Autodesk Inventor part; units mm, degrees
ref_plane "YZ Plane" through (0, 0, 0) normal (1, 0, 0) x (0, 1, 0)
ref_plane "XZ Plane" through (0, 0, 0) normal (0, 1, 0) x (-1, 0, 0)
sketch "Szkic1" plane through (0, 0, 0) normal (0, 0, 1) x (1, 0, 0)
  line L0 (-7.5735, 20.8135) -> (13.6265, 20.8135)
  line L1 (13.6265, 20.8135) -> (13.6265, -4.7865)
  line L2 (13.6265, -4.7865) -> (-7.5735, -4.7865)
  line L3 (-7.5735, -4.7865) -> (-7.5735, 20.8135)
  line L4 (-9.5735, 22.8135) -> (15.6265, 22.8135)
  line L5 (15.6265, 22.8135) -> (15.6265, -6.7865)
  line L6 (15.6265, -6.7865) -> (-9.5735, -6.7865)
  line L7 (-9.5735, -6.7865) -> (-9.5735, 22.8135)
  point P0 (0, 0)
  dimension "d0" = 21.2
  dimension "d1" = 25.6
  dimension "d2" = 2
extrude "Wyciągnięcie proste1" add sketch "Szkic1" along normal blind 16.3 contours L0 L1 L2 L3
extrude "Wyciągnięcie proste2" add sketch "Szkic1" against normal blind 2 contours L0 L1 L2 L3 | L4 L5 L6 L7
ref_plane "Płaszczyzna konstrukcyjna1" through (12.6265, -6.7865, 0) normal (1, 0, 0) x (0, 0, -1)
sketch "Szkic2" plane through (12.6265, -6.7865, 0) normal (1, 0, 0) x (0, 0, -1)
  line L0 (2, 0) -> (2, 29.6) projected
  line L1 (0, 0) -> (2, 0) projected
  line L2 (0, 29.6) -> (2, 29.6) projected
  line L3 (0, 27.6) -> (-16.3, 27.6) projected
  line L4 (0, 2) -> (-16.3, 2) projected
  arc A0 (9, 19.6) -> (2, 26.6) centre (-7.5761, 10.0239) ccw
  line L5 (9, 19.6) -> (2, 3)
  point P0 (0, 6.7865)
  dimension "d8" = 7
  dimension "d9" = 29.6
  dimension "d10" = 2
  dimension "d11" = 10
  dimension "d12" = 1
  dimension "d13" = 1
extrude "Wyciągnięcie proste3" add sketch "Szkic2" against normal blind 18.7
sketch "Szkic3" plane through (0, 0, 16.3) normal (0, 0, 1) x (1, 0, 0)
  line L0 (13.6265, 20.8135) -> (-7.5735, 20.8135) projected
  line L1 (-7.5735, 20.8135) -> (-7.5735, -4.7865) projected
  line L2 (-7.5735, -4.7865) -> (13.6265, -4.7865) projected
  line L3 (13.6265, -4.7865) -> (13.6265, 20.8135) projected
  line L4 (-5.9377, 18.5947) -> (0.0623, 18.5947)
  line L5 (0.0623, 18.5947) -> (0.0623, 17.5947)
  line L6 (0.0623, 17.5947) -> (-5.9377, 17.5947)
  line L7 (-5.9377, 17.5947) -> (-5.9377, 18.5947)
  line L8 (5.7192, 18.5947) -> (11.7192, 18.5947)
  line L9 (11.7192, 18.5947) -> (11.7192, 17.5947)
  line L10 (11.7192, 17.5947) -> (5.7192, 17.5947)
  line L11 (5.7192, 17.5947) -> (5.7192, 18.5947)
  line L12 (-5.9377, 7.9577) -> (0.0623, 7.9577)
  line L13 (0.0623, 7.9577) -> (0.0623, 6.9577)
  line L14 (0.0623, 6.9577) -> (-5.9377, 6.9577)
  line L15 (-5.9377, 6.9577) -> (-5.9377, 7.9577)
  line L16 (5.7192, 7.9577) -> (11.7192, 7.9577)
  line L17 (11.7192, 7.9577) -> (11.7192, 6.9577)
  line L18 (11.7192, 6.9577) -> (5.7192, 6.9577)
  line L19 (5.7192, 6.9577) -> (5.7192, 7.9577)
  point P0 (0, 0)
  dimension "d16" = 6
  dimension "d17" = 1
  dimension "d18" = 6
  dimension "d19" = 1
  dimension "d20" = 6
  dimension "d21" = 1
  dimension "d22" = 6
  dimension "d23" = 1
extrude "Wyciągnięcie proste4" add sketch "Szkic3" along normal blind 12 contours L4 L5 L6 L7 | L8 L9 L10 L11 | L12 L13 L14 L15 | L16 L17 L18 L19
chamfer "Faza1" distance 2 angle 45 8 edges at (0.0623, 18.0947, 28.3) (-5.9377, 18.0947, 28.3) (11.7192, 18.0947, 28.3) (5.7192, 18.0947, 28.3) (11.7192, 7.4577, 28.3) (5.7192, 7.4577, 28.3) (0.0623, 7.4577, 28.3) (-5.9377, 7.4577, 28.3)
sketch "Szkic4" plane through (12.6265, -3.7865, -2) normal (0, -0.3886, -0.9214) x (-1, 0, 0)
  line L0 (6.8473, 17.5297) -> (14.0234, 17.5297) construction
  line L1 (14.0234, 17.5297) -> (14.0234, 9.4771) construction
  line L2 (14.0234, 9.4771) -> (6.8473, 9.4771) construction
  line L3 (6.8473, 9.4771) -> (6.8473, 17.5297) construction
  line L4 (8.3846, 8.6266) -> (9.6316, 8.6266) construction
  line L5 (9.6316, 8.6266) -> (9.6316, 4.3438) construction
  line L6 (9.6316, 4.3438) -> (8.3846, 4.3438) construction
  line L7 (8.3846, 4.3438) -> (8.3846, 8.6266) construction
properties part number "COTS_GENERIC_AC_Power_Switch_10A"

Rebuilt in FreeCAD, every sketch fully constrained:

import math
import FreeCAD as App
import Part
import Sketcher

V = App.Vector


def edges_at(feature, points):
    """Names of the edges that pass closest to the given points."""
    edges = feature.Shape.Edges
    near = lambda p: min(range(len(edges)), key=lambda i: edges[i].distToShape(Part.Vertex(*p))[0])
    return sorted({f"Edge{near(p) + 1}" for p in points})


def add_polygon(sketch, points):
    """Adds a closed chain of lines whose ends are joined by coincident constraints."""
    first, n = sketch.GeometryCount, len(points)
    for a, b in zip(points, points[1:] + points[:1]):
        sketch.addGeometry(Part.LineSegment(App.Vector(*a, 0), App.Vector(*b, 0)), False)
    for i in range(n):
        sketch.addConstraint(Sketcher.Constraint("Coincident", first + i, 2, first + (i + 1) % n, 1))

doc = App.newDocument("Part")
body = doc.addObject("PartDesign::Body", "Body")

# Sketch on XY plane
sketch1 = body.newObject("Sketcher::SketchObject", "Sketch")
sketch1.AttachmentSupport = (doc.getObject("XY_Plane"), [""])
sketch1.MapMode = "FlatFace"
add_polygon(sketch1, [(14, 21), (-8, 21), (-8, -5), (14, -5)])  # lines 0-3
sketch1.addConstraint(Sketcher.Constraint("Horizontal", 0))
sketch1.addConstraint(Sketcher.Constraint("Vertical", 1))
sketch1.addConstraint(Sketcher.Constraint("Horizontal", 2))
sketch1.addConstraint(Sketcher.Constraint("Vertical", 3))
sketch1.addConstraint(Sketcher.Constraint("DistanceX", 0, 2, 0, 1, 21.2))
sketch1.addConstraint(Sketcher.Constraint("DistanceY", 1, 2, 1, 1, 25.6))
sketch1.addConstraint(Sketcher.Constraint("DistanceX", 0, 2, -1, 1, 7.5735))
sketch1.addConstraint(Sketcher.Constraint("DistanceY", -1, 1, 0, 2, 20.8135))
pad1 = body.newObject("PartDesign::Pad", "Pad")
pad1.Profile = sketch1
pad1.Length = 16.3

# Sketch on XY plane
sketch2 = body.newObject("Sketcher::SketchObject", "Sketch001")
sketch2.AttachmentSupport = (doc.getObject("XY_Plane"), [""])
sketch2.MapMode = "FlatFace"
add_polygon(sketch2, [(16, 23), (-10, 23), (-10, -7), (16, -7)])  # lines 0-3
sketch2.addConstraint(Sketcher.Constraint("Horizontal", 0))
sketch2.addConstraint(Sketcher.Constraint("Vertical", 1))
sketch2.addConstraint(Sketcher.Constraint("Horizontal", 2))
sketch2.addConstraint(Sketcher.Constraint("Vertical", 3))
sketch2.addConstraint(Sketcher.Constraint("DistanceX", 0, 2, 0, 1, 25.2))
sketch2.addConstraint(Sketcher.Constraint("DistanceY", 1, 2, 1, 1, 29.6))
sketch2.addConstraint(Sketcher.Constraint("DistanceX", 0, 2, -1, 1, 9.5735))
sketch2.addConstraint(Sketcher.Constraint("DistanceY", -1, 1, 0, 2, 22.8135))
pad2 = body.newObject("PartDesign::Pad", "Pad001")
pad2.Profile = sketch2
pad2.Length = 2
pad2.Reversed = True

# Sketch on YZ plane
sketch3 = body.newObject("Sketcher::SketchObject", "Sketch002")
sketch3.AttachmentSupport = (doc.getObject("YZ_Plane"), [""])
sketch3.MapMode = "FlatFace"
sketch3.AttachmentOffset = App.Placement(V(0, 0, 12.6265), App.Rotation())
sketch3.addGeometry(Part.LineSegment(V(20, -2, 0), V(-4, -2, 0)), False)
sketch3.addGeometry(Part.LineSegment(V(-4, -2, 0), V(13, -9, 0)), False)
sketch3.addGeometry(Part.ArcOfCircle(Part.Circle(V(3, 8, 0), V(0, 0, 1), 19), math.radians(-60), math.radians(-30)), False)
sketch3.addConstraint(Sketcher.Constraint("Coincident", 0, 2, 1, 1))
sketch3.addConstraint(Sketcher.Constraint("Coincident", 1, 2, 2, 1))
sketch3.addConstraint(Sketcher.Constraint("Coincident", 2, 2, 0, 1))
sketch3.addConstraint(Sketcher.Constraint("Horizontal", 0))
sketch3.addConstraint(Sketcher.Constraint("DistanceY", 0, 2, -1, 1, 2.0))
sketch3.addConstraint(Sketcher.Constraint("DistanceY", 1, 2, 0, 2, 7.0))
sketch3.addConstraint(Sketcher.Constraint("DistanceX", 1, 2, 2, 2, 7.0))
sketch3.addConstraint(Sketcher.Constraint("DistanceX", 0, 2, 0, 1, 23.6))
sketch3.addConstraint(Sketcher.Constraint("Radius", 2, 19.1434))
sketch3.addConstraint(Sketcher.Constraint("DistanceX", -1, 1, 2, 3, 3.2374))
pad3 = body.newObject("PartDesign::Pad", "Pad002")
pad3.Profile = sketch3
pad3.Length = 18.7
pad3.Reversed = True

# Sketch on XY plane
sketch4 = body.newObject("Sketcher::SketchObject", "Sketch003")
sketch4.AttachmentSupport = (doc.getObject("XY_Plane"), [""])
sketch4.MapMode = "FlatFace"
sketch4.AttachmentOffset = App.Placement(V(0, 0, 16.3), App.Rotation())
add_polygon(sketch4, [(0.1, 18.6), (-5.9, 18.6), (-5.9, 17.6), (0.1, 17.6)])  # lines 0-3
add_polygon(sketch4, [(11.7, 18.6), (5.7, 18.6), (5.7, 17.6), (11.7, 17.6)])  # lines 4-7
add_polygon(sketch4, [(0.1, 8), (-5.9, 8), (-5.9, 7), (0.1, 7)])  # lines 8-11
add_polygon(sketch4, [(11.7, 8), (5.7, 8), (5.7, 7), (11.7, 7)])  # lines 12-15
sketch4.addConstraint(Sketcher.Constraint("Horizontal", 0))
sketch4.addConstraint(Sketcher.Constraint("Vertical", 1))
sketch4.addConstraint(Sketcher.Constraint("Horizontal", 2))
sketch4.addConstraint(Sketcher.Constraint("Vertical", 3))
sketch4.addConstraint(Sketcher.Constraint("Horizontal", 4))
sketch4.addConstraint(Sketcher.Constraint("Vertical", 5))
sketch4.addConstraint(Sketcher.Constraint("Horizontal", 6))
sketch4.addConstraint(Sketcher.Constraint("Vertical", 7))
sketch4.addConstraint(Sketcher.Constraint("Horizontal", 8))
sketch4.addConstraint(Sketcher.Constraint("Vertical", 9))
sketch4.addConstraint(Sketcher.Constraint("Horizontal", 10))
sketch4.addConstraint(Sketcher.Constraint("Vertical", 11))
sketch4.addConstraint(Sketcher.Constraint("Horizontal", 12))
sketch4.addConstraint(Sketcher.Constraint("Vertical", 13))
sketch4.addConstraint(Sketcher.Constraint("Horizontal", 14))
sketch4.addConstraint(Sketcher.Constraint("Vertical", 15))
sketch4.addConstraint(Sketcher.Constraint("Horizontal", 3, 2, 4, 2))
sketch4.addConstraint(Sketcher.Constraint("Horizontal", 2, 2, 5, 2))
sketch4.addConstraint(Sketcher.Constraint("Horizontal", 11, 2, 12, 2))
sketch4.addConstraint(Sketcher.Constraint("Horizontal", 10, 2, 13, 2))
sketch4.addConstraint(Sketcher.Constraint("Vertical", 1, 2, 8, 2))
sketch4.addConstraint(Sketcher.Constraint("Vertical", 3, 2, 10, 2))
sketch4.addConstraint(Sketcher.Constraint("Vertical", 5, 2, 12, 2))
sketch4.addConstraint(Sketcher.Constraint("Vertical", 7, 2, 14, 2))
sketch4.addConstraint(Sketcher.Constraint("Equal", 2, 4))
sketch4.addConstraint(Sketcher.Constraint("Equal", 7, 9))
sketch4.addConstraint(Sketcher.Constraint("DistanceX", 0, 2, 0, 1, 6.0))
sketch4.addConstraint(Sketcher.Constraint("DistanceY", 1, 2, 1, 1, 1.0))
sketch4.addConstraint(Sketcher.Constraint("DistanceX", 3, 2, 4, 2, 5.657))
sketch4.addConstraint(Sketcher.Constraint("DistanceY", 8, 2, 1, 2, 9.637))
sketch4.addConstraint(Sketcher.Constraint("DistanceX", 0, 2, -1, 1, 5.9377))
sketch4.addConstraint(Sketcher.Constraint("DistanceY", -1, 1, 0, 2, 18.5947))
pad4 = body.newObject("PartDesign::Pad", "Pad003")
pad4.Profile = sketch4
pad4.Length = 12
doc.recompute()

chamfer = body.newObject("PartDesign::Chamfer", "Chamfer")
chamfer.Base = (pad4, edges_at(pad4, [
    (0.062, 18.095, 28.3),
    (-5.938, 18.095, 28.3),
    (11.719, 18.095, 28.3),
    (5.719, 18.095, 28.3),
    (11.719, 7.458, 28.3),
    (5.719, 7.458, 28.3),
    (0.062, 7.458, 28.3),
    (-5.938, 7.458, 28.3),
]))
chamfer.Size = 2

doc.recompute()
